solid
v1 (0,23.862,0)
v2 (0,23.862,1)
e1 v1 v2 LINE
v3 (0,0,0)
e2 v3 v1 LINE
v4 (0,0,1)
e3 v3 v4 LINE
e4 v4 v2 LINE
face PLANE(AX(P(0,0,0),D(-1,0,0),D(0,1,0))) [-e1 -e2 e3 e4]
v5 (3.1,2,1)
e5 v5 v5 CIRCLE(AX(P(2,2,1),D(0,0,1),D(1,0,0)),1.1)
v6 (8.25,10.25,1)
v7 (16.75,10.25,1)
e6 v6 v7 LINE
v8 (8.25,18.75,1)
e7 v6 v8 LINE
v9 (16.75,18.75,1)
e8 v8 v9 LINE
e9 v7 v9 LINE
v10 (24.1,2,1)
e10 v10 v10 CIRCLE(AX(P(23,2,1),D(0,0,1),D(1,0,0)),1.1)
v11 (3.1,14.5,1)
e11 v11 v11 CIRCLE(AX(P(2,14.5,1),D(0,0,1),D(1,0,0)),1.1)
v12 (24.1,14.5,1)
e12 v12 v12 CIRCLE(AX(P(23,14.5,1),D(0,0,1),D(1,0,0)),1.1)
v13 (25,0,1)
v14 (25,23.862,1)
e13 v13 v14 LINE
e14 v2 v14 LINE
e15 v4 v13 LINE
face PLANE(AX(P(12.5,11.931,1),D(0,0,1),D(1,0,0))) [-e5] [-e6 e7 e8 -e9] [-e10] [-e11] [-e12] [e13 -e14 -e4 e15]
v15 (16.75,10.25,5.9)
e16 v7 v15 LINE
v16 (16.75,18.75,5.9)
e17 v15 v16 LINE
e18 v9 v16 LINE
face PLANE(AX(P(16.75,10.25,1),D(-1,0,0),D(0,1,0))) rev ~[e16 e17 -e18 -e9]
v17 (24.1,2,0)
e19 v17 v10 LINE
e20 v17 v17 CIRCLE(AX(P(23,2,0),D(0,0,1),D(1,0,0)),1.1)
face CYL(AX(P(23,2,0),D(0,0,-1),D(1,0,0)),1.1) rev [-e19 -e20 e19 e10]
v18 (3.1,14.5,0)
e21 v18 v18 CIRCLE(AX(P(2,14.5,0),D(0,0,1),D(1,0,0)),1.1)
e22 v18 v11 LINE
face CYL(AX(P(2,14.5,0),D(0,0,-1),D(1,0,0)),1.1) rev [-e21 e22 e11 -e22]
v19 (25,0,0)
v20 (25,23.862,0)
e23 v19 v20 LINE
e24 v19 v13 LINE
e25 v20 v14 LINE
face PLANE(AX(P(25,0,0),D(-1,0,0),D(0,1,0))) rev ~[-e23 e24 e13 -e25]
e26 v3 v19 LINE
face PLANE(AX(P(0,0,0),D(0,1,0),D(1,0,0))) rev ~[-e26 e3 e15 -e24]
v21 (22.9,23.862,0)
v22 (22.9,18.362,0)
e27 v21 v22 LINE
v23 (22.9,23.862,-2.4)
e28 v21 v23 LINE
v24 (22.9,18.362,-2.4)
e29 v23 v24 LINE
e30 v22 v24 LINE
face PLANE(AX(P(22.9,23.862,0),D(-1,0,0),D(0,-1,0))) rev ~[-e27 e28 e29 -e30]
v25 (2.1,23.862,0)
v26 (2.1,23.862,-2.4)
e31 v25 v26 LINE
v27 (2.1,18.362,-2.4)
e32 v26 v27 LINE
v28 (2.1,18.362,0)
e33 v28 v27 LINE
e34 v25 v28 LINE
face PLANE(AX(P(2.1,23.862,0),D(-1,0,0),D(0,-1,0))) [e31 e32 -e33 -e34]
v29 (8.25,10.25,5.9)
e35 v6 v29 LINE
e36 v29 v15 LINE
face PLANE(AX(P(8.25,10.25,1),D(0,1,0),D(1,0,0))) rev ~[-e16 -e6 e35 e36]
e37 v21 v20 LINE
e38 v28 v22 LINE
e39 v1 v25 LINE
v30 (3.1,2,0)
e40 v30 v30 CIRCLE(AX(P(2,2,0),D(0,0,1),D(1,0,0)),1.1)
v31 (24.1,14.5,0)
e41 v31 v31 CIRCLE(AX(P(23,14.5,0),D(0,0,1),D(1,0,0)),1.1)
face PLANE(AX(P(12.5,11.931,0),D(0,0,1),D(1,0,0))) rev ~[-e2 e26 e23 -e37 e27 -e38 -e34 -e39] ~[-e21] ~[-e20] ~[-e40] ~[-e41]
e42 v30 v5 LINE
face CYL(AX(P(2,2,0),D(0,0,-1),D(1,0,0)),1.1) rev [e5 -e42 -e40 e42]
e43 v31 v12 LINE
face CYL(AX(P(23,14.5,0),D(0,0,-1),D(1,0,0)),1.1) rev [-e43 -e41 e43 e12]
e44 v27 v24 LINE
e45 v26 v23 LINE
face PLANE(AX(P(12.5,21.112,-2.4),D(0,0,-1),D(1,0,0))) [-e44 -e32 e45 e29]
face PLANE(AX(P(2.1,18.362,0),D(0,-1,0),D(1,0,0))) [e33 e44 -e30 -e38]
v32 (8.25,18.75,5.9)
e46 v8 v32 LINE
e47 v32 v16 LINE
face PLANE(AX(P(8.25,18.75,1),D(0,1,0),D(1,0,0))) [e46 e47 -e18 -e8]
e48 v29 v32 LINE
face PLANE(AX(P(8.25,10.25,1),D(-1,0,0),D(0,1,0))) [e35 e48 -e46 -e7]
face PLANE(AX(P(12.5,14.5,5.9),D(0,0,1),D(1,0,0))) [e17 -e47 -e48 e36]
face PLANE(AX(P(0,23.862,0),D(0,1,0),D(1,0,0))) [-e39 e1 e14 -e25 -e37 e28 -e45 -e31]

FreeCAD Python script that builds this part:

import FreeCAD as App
import Part
import Sketcher
from FreeCAD import Vector
Q = App.Units.Quantity


def add_polygon(sketch, points):
    """Adds a closed chain of lines whose ends are joined by coincident constraints."""
    first, n = sketch.GeometryCount, len(points)
    for a, b in zip(points, points[1:] + points[:1]):
        sketch.addGeometry(Part.LineSegment(App.Vector(*a, 0), App.Vector(*b, 0)), False)
    for i in range(n):
        sketch.addConstraint(Sketcher.Constraint("Coincident", first + i, 2, first + (i + 1) % n, 1))

doc = App.newDocument("Part")
body = doc.addObject("PartDesign::Body", "Body")

# Sketch on XY plane
sketch1 = body.newObject("Sketcher::SketchObject", "Sketch")
sketch1.AttachmentSupport = (doc.getObject("XY_Plane"), [""])
sketch1.MapMode = "FlatFace"
add_polygon(sketch1, [(0, 23.862), (0, 0), (25, 0), (25, 23.862)])  # lines 0-3
sketch1.addGeometry(Part.Circle(Vector(2, 2, 0), Vector(0, 0, 1), 1.1), False)  # 4
sketch1.addGeometry(Part.Circle(Vector(23, 2, 0), Vector(0, 0, 1), 1.1), False)  # 5
sketch1.addGeometry(Part.Circle(Vector(2, 14.5, 0), Vector(0, 0, 1), 1.1), False)  # 6
sketch1.addGeometry(Part.Circle(Vector(23, 14.5, 0), Vector(0, 0, 1), 1.1), False)  # 7
sketch1.addConstraint(Sketcher.Constraint("Vertical", 0))
sketch1.addConstraint(Sketcher.Constraint("Horizontal", 1))
sketch1.addConstraint(Sketcher.Constraint("Vertical", 2))
sketch1.addConstraint(Sketcher.Constraint("Horizontal", 3))
sketch1.addConstraint(Sketcher.Constraint("Coincident", 0, 2, -1, 1))
sketch1.addConstraint(Sketcher.Constraint("Equal", 4, 5))
sketch1.addConstraint(Sketcher.Constraint("Equal", 5, 6))
sketch1.addConstraint(Sketcher.Constraint("Equal", 6, 7))
sketch1.addConstraint(Sketcher.Constraint("Horizontal", 4, 3, 5, 3))
sketch1.addConstraint(Sketcher.Constraint("Horizontal", 6, 3, 7, 3))
sketch1.addConstraint(Sketcher.Constraint("Vertical", 4, 3, 6, 3))
sketch1.addConstraint(Sketcher.Constraint("Vertical", 5, 3, 7, 3))
sketch1.addConstraint(Sketcher.Constraint("Diameter", 4, Q("2.2 mm")))
sketch1.addConstraint(Sketcher.Constraint("DistanceX", 1, 1, 1, 2, Q("25 mm")))
sketch1.addConstraint(Sketcher.Constraint("DistanceX", -1, 1, 4, 3, Q("2 mm")))
sketch1.addConstraint(Sketcher.Constraint("DistanceY", -1, 1, 4, 3, Q("2 mm")))
sketch1.addConstraint(Sketcher.Constraint("DistanceX", -1, 1, 5, 3, Q("23 mm")))
sketch1.addConstraint(Sketcher.Constraint("DistanceY", -1, 1, 6, 3, Q("14.5 mm")))
sketch1.addConstraint(Sketcher.Constraint("DistanceY", 0, 2, 0, 1, Q("23.862 mm")))
pad1 = body.newObject("PartDesign::Pad", "Pad")
pad1.Profile = sketch1
pad1.Length = 1

# Sketch on XY plane
sketch2 = body.newObject("Sketcher::SketchObject", "Sketch001")
sketch2.AttachmentSupport = (doc.getObject("XY_Plane"), [""])
sketch2.MapMode = "FlatFace"
add_polygon(sketch2, [(2.1, 18.362), (2.1, 23.862), (22.9, 23.862), (22.9, 18.362)])  # lines 0-3
sketch2.addConstraint(Sketcher.Constraint("Vertical", 0))
sketch2.addConstraint(Sketcher.Constraint("Horizontal", 1))
sketch2.addConstraint(Sketcher.Constraint("Vertical", 2))
sketch2.addConstraint(Sketcher.Constraint("Horizontal", 3))
sketch2.addConstraint(Sketcher.Constraint("DistanceX", 1, 1, 1, 2, Q("20.8 mm")))
sketch2.addConstraint(Sketcher.Constraint("DistanceY", 0, 1, 0, 2, Q("5.5 mm")))
sketch2.addConstraint(Sketcher.Constraint("DistanceX", -1, 1, 0, 2, Q("2.1 mm")))
sketch2.addConstraint(Sketcher.Constraint("DistanceY", -1, 1, 0, 2, Q("23.862 mm")))
pad2 = body.newObject("PartDesign::Pad", "Pad001")
pad2.Profile = sketch2
pad2.Length = 2.4
pad2.Reversed = True

# Sketch on XY plane
sketch3 = body.newObject("Sketcher::SketchObject", "Sketch002")
sketch3.AttachmentSupport = (doc.getObject("XY_Plane"), [""])
sketch3.MapMode = "FlatFace"
sketch3.AttachmentOffset = App.Placement(Vector(0, 0, 1), App.Rotation())
add_polygon(sketch3, [(8.25, 18.75), (8.25, 10.25), (16.75, 10.25), (16.75, 18.75)])  # lines 0-3
sketch3.addConstraint(Sketcher.Constraint("Vertical", 0))
sketch3.addConstraint(Sketcher.Constraint("Horizontal", 1))
sketch3.addConstraint(Sketcher.Constraint("Vertical", 2))
sketch3.addConstraint(Sketcher.Constraint("Horizontal", 3))
sketch3.addConstraint(Sketcher.Constraint("Equal", 3, 0))
sketch3.addConstraint(Sketcher.Constraint("DistanceX", 1, 1, 1, 2, Q("8.5 mm")))
sketch3.addConstraint(Sketcher.Constraint("DistanceX", -1, 1, 0, 2, Q("8.25 mm")))
sketch3.addConstraint(Sketcher.Constraint("DistanceY", -1, 1, 0, 2, Q("10.25 mm")))
pad3 = body.newObject("PartDesign::Pad", "Pad002")
pad3.Profile = sketch3
pad3.Length = 4.9

doc.recompute()
